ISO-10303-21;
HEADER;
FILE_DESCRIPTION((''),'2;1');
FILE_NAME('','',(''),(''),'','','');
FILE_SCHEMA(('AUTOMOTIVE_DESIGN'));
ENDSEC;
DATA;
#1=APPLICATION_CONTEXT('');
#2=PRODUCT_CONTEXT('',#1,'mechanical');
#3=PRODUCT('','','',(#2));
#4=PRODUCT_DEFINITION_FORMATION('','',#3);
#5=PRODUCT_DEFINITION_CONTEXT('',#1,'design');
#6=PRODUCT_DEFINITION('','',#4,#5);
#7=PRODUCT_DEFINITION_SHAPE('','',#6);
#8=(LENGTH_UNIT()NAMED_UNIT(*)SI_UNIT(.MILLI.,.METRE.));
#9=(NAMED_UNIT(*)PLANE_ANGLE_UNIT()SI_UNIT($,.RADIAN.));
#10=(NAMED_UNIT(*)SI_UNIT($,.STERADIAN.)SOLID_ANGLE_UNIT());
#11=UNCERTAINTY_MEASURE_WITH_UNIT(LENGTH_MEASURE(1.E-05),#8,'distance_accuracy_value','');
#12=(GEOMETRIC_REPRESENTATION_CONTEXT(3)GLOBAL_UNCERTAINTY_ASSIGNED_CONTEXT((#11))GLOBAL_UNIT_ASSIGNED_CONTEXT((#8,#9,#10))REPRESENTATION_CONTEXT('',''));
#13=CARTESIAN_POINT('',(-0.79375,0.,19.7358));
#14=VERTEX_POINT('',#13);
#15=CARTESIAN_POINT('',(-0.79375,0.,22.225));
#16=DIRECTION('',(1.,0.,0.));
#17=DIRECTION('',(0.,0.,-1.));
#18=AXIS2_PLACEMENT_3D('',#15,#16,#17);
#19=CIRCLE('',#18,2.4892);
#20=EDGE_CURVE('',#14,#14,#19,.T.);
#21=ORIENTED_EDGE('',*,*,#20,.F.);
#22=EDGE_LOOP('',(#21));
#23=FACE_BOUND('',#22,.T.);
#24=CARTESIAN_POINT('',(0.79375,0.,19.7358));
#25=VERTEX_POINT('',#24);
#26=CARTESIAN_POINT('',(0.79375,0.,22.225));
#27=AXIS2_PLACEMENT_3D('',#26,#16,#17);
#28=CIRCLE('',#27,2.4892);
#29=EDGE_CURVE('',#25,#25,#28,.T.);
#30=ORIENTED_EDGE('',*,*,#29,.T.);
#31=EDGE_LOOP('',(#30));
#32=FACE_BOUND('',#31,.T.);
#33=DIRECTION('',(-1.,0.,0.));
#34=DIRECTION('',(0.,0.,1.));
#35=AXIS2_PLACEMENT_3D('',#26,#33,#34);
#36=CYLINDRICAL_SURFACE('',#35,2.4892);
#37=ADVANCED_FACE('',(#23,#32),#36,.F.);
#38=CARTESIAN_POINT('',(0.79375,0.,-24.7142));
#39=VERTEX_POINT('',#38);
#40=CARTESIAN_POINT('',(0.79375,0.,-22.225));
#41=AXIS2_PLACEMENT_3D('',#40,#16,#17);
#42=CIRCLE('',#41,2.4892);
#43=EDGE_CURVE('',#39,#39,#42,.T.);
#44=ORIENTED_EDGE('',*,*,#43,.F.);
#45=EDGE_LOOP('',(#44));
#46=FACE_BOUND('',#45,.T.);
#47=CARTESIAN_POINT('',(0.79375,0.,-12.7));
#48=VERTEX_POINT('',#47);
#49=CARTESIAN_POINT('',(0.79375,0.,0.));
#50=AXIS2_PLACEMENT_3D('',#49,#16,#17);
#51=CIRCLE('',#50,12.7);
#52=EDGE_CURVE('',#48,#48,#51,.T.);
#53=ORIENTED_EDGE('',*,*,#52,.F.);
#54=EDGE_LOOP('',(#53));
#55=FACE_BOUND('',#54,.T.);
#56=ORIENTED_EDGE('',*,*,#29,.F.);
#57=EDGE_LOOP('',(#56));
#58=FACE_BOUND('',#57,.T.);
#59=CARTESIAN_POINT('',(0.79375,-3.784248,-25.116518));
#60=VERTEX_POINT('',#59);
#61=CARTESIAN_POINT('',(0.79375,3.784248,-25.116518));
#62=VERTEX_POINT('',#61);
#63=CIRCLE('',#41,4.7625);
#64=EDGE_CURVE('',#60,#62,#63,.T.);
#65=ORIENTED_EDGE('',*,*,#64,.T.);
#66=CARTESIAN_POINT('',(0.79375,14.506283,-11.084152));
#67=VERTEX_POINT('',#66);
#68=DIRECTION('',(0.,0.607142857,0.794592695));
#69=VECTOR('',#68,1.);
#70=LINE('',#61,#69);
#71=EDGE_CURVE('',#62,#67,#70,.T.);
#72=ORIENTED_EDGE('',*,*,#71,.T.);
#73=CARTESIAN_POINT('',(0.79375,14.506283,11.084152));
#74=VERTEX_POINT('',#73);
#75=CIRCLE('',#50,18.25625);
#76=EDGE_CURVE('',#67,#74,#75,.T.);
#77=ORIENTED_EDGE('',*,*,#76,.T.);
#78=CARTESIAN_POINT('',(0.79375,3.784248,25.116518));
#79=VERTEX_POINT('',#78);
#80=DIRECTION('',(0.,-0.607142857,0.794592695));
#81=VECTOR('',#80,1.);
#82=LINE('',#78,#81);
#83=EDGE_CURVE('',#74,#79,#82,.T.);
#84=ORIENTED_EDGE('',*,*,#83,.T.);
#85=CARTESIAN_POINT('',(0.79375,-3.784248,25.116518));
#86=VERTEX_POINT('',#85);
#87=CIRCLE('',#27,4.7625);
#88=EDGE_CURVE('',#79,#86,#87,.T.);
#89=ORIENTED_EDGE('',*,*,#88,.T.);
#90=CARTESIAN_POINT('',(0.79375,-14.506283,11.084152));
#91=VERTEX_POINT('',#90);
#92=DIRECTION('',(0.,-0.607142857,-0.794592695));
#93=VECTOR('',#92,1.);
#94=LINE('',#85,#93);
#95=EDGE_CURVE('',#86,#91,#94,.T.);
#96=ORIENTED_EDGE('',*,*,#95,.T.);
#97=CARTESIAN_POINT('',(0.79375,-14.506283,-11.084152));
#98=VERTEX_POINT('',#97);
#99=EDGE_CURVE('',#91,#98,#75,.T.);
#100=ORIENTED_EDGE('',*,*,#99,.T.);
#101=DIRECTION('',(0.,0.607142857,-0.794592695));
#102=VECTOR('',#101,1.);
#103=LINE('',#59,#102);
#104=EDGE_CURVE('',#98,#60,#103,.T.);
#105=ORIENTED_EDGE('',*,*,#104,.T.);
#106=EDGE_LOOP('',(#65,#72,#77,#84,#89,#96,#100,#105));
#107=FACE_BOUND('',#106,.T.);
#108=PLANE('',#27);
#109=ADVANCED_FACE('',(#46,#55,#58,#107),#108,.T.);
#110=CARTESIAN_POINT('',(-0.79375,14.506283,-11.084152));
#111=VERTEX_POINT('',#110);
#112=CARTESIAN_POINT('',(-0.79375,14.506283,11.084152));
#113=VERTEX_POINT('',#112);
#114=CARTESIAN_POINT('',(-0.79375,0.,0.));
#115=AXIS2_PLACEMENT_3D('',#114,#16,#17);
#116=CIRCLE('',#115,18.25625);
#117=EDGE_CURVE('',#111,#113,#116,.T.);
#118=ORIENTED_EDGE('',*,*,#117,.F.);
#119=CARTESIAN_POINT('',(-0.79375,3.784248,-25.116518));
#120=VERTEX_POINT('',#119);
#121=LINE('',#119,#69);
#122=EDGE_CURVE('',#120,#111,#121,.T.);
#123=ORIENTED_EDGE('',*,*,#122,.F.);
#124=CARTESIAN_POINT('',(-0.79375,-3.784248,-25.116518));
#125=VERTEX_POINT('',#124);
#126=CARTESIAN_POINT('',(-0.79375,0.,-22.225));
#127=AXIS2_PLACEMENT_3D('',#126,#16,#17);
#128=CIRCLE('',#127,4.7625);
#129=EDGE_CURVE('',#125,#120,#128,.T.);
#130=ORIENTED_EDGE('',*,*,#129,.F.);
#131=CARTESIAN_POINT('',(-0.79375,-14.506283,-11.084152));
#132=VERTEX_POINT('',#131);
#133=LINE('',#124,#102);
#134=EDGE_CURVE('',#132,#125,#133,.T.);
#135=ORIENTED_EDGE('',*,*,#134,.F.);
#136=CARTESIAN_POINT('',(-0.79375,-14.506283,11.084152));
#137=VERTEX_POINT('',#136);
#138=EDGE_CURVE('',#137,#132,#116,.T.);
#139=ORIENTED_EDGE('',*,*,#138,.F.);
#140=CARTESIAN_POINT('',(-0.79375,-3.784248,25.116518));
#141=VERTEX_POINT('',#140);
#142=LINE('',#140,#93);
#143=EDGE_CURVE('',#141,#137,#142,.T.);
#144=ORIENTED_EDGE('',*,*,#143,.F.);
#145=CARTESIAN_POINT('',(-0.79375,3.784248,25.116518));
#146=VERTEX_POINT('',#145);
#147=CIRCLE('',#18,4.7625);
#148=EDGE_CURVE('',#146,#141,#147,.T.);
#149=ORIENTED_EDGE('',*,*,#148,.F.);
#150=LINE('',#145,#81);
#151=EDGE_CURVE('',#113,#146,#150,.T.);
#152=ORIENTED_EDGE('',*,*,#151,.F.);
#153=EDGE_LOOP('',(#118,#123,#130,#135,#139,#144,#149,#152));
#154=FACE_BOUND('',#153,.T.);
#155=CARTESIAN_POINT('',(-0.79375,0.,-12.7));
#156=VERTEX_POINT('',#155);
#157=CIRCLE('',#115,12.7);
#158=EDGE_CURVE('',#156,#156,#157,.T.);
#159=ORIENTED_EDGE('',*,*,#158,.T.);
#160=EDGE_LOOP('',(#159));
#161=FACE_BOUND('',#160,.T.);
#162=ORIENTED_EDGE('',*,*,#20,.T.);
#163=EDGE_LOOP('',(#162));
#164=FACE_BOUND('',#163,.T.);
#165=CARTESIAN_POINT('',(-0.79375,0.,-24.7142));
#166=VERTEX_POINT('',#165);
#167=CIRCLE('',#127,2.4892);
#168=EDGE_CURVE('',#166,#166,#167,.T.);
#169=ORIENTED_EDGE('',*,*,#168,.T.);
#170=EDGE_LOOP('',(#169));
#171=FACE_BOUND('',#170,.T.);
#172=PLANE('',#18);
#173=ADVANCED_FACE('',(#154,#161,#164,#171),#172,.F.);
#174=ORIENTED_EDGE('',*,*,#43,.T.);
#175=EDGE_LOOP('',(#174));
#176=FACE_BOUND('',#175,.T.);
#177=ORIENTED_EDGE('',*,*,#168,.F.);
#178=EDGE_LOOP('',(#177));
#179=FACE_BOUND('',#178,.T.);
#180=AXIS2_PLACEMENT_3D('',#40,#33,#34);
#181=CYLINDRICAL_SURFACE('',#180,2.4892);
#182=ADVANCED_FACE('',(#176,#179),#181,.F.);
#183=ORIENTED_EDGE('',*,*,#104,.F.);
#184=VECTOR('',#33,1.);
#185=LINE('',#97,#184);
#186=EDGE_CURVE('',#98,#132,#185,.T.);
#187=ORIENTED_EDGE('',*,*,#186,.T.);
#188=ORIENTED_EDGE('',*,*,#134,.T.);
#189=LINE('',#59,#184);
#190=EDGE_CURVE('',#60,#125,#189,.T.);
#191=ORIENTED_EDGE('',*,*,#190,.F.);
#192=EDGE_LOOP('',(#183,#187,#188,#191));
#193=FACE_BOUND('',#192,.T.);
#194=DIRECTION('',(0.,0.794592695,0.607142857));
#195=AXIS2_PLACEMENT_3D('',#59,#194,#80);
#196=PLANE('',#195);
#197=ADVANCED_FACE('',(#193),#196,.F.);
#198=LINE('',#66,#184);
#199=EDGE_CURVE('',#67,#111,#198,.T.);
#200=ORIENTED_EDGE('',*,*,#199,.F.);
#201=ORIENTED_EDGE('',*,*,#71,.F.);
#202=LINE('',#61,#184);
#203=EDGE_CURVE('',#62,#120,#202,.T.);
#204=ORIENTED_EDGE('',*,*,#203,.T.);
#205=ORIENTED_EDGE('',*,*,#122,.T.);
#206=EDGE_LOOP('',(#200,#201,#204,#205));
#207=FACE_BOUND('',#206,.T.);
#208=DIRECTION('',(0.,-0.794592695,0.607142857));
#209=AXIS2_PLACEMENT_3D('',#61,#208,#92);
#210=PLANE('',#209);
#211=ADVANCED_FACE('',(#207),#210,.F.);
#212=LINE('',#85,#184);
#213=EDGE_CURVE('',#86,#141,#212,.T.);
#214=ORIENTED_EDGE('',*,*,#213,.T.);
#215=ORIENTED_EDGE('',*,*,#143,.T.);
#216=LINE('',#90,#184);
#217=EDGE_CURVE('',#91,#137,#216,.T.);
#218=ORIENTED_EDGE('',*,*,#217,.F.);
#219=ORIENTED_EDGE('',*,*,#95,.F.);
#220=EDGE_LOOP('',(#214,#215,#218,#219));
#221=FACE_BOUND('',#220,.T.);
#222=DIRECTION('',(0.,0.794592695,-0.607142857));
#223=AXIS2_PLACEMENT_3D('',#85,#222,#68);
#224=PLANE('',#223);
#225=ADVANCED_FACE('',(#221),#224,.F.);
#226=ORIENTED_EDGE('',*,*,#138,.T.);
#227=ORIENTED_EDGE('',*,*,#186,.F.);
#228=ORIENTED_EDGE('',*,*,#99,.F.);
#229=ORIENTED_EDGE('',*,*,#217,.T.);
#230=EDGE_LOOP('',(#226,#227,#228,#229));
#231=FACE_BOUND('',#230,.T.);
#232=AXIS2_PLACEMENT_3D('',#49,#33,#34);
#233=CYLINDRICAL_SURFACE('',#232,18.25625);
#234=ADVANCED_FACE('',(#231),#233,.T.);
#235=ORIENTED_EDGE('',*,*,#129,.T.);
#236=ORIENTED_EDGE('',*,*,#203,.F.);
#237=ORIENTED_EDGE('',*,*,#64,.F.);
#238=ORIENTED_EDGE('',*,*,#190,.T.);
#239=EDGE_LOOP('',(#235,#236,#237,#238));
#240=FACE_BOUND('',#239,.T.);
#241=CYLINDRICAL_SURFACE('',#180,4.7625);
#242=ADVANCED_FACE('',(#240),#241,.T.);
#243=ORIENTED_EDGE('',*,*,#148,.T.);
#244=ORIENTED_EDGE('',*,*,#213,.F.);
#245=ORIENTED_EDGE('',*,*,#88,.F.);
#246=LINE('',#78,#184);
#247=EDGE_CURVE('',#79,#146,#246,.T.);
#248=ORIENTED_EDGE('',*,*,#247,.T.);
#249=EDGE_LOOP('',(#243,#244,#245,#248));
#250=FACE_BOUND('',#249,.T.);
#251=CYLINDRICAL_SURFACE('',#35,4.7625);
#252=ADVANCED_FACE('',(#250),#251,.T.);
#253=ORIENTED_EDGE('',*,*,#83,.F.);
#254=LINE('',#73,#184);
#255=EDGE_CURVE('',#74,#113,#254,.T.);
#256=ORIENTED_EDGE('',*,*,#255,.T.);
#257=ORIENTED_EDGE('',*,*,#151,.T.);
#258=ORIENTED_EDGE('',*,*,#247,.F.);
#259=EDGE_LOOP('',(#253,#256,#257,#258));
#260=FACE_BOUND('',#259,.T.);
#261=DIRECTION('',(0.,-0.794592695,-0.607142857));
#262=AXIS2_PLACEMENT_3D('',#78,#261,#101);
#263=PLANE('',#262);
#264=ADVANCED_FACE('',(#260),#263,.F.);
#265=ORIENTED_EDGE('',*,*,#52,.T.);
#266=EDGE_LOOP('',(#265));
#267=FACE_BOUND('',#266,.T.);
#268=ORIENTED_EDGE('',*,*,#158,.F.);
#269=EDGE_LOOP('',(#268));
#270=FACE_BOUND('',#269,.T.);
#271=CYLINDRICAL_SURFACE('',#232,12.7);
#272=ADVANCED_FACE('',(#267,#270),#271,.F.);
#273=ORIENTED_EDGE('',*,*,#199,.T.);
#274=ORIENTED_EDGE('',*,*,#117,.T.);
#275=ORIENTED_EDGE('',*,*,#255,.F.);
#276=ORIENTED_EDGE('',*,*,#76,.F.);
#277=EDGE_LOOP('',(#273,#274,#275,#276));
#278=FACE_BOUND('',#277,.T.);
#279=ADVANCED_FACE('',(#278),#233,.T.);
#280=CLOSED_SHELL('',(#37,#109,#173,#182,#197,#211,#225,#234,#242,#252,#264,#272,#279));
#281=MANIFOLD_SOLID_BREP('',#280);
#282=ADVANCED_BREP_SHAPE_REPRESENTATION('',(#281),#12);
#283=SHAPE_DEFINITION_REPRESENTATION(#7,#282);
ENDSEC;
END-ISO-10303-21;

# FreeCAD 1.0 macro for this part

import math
import FreeCAD as App
import Part
import Sketcher
Q = App.Units.Quantity

doc = App.newDocument("Part")
body = doc.addObject("PartDesign::Body", "Body")

# Sketch on YZ plane
sketch1 = body.newObject("Sketcher::SketchObject", "Sketch")
sketch1.AttachmentSupport = (doc.getObject("YZ_Plane"), [""])
sketch1.MapMode = "FlatFace"
sketch1.addGeometry(Part.LineSegment(App.Vector(-3.8, 25.1, 0), App.Vector(-14.5, 11.1, 0)), False)
sketch1.addGeometry(Part.ArcOfCircle(Part.Circle(App.Vector(0, 0, 0), App.Vector(0, 0, 1), 18.3), math.radians(143), math.radians(217)), False)
sketch1.addGeometry(Part.LineSegment(App.Vector(-14.5, -11.1, 0), App.Vector(-3.8, -25.1, 0)), False)
sketch1.addGeometry(Part.ArcOfCircle(Part.Circle(App.Vector(0, -22.2, 0), App.Vector(0, 0, 1), 4.8), math.radians(-143), math.radians(-37)), False)
sketch1.addGeometry(Part.LineSegment(App.Vector(3.8, -25.1, 0), App.Vector(14.5, -11.1, 0)), False)
sketch1.addGeometry(Part.ArcOfCircle(Part.Circle(App.Vector(0, 0, 0), App.Vector(0, 0, 1), 18.3), math.radians(-37), math.radians(37)), False)
sketch1.addGeometry(Part.LineSegment(App.Vector(14.5, 11.1, 0), App.Vector(3.8, 25.1, 0)), False)
sketch1.addGeometry(Part.ArcOfCircle(Part.Circle(App.Vector(0, 22.2, 0), App.Vector(0, 0, 1), 4.8), math.radians(37), math.radians(143)), False)
sketch1.addGeometry(Part.Circle(App.Vector(0, 22.2, 0), App.Vector(0, 0, 1), 2.5), False)
sketch1.addGeometry(Part.Circle(App.Vector(0, 0, 0), App.Vector(0, 0, 1), 12.7), False)
sketch1.addGeometry(Part.Circle(App.Vector(0, -22.2, 0), App.Vector(0, 0, 1), 2.5), False)
sketch1.addConstraint(Sketcher.Constraint("Tangent", 0, 2, 1, 1))
sketch1.addConstraint(Sketcher.Constraint("Tangent", 1, 2, 2, 1))
sketch1.addConstraint(Sketcher.Constraint("Tangent", 2, 2, 3, 1))
sketch1.addConstraint(Sketcher.Constraint("Tangent", 3, 2, 4, 1))
sketch1.addConstraint(Sketcher.Constraint("Tangent", 4, 2, 5, 1))
sketch1.addConstraint(Sketcher.Constraint("Tangent", 5, 2, 6, 1))
sketch1.addConstraint(Sketcher.Constraint("Tangent", 6, 2, 7, 1))
sketch1.addConstraint(Sketcher.Constraint("Tangent", 7, 2, 0, 1))
sketch1.addConstraint(Sketcher.Constraint("Coincident", 1, 3, -1, 1))
sketch1.addConstraint(Sketcher.Constraint("Coincident", 5, 3, -1, 1))
sketch1.addConstraint(Sketcher.Constraint("Coincident", 9, 3, -1, 1))
sketch1.addConstraint(Sketcher.Constraint("Coincident", 8, 3, 7, 3))
sketch1.addConstraint(Sketcher.Constraint("Coincident", 10, 3, 3, 3))
sketch1.addConstraint(Sketcher.Constraint("Equal", 1, 5))
sketch1.addConstraint(Sketcher.Constraint("Equal", 3, 7))
sketch1.addConstraint(Sketcher.Constraint("Equal", 8, 10))
sketch1.addConstraint(Sketcher.Constraint("Symmetric", 3, 3, 7, 3, -1, 1))
sketch1.addConstraint(Sketcher.Constraint("PointOnObject", 3, 3, -2))
sketch1.addConstraint(Sketcher.Constraint("Diameter", 9, Q("1 in")))
sketch1.addConstraint(Sketcher.Constraint("Diameter", 8, Q("0.196 in")))
sketch1.addConstraint(Sketcher.Constraint("Radius", 1, Q("0.71875 in")))
sketch1.addConstraint(Sketcher.Constraint("Radius", 3, Q("0.1875 in")))
sketch1.addConstraint(Sketcher.Constraint("DistanceY", 3, 3, 7, 3, Q("1.75 in")))
pad1 = body.newObject("PartDesign::Pad", "Pad")
pad1.Profile = sketch1
pad1.Length = Q("0.0625 in")
pad1.Midplane = True

doc.recompute()
